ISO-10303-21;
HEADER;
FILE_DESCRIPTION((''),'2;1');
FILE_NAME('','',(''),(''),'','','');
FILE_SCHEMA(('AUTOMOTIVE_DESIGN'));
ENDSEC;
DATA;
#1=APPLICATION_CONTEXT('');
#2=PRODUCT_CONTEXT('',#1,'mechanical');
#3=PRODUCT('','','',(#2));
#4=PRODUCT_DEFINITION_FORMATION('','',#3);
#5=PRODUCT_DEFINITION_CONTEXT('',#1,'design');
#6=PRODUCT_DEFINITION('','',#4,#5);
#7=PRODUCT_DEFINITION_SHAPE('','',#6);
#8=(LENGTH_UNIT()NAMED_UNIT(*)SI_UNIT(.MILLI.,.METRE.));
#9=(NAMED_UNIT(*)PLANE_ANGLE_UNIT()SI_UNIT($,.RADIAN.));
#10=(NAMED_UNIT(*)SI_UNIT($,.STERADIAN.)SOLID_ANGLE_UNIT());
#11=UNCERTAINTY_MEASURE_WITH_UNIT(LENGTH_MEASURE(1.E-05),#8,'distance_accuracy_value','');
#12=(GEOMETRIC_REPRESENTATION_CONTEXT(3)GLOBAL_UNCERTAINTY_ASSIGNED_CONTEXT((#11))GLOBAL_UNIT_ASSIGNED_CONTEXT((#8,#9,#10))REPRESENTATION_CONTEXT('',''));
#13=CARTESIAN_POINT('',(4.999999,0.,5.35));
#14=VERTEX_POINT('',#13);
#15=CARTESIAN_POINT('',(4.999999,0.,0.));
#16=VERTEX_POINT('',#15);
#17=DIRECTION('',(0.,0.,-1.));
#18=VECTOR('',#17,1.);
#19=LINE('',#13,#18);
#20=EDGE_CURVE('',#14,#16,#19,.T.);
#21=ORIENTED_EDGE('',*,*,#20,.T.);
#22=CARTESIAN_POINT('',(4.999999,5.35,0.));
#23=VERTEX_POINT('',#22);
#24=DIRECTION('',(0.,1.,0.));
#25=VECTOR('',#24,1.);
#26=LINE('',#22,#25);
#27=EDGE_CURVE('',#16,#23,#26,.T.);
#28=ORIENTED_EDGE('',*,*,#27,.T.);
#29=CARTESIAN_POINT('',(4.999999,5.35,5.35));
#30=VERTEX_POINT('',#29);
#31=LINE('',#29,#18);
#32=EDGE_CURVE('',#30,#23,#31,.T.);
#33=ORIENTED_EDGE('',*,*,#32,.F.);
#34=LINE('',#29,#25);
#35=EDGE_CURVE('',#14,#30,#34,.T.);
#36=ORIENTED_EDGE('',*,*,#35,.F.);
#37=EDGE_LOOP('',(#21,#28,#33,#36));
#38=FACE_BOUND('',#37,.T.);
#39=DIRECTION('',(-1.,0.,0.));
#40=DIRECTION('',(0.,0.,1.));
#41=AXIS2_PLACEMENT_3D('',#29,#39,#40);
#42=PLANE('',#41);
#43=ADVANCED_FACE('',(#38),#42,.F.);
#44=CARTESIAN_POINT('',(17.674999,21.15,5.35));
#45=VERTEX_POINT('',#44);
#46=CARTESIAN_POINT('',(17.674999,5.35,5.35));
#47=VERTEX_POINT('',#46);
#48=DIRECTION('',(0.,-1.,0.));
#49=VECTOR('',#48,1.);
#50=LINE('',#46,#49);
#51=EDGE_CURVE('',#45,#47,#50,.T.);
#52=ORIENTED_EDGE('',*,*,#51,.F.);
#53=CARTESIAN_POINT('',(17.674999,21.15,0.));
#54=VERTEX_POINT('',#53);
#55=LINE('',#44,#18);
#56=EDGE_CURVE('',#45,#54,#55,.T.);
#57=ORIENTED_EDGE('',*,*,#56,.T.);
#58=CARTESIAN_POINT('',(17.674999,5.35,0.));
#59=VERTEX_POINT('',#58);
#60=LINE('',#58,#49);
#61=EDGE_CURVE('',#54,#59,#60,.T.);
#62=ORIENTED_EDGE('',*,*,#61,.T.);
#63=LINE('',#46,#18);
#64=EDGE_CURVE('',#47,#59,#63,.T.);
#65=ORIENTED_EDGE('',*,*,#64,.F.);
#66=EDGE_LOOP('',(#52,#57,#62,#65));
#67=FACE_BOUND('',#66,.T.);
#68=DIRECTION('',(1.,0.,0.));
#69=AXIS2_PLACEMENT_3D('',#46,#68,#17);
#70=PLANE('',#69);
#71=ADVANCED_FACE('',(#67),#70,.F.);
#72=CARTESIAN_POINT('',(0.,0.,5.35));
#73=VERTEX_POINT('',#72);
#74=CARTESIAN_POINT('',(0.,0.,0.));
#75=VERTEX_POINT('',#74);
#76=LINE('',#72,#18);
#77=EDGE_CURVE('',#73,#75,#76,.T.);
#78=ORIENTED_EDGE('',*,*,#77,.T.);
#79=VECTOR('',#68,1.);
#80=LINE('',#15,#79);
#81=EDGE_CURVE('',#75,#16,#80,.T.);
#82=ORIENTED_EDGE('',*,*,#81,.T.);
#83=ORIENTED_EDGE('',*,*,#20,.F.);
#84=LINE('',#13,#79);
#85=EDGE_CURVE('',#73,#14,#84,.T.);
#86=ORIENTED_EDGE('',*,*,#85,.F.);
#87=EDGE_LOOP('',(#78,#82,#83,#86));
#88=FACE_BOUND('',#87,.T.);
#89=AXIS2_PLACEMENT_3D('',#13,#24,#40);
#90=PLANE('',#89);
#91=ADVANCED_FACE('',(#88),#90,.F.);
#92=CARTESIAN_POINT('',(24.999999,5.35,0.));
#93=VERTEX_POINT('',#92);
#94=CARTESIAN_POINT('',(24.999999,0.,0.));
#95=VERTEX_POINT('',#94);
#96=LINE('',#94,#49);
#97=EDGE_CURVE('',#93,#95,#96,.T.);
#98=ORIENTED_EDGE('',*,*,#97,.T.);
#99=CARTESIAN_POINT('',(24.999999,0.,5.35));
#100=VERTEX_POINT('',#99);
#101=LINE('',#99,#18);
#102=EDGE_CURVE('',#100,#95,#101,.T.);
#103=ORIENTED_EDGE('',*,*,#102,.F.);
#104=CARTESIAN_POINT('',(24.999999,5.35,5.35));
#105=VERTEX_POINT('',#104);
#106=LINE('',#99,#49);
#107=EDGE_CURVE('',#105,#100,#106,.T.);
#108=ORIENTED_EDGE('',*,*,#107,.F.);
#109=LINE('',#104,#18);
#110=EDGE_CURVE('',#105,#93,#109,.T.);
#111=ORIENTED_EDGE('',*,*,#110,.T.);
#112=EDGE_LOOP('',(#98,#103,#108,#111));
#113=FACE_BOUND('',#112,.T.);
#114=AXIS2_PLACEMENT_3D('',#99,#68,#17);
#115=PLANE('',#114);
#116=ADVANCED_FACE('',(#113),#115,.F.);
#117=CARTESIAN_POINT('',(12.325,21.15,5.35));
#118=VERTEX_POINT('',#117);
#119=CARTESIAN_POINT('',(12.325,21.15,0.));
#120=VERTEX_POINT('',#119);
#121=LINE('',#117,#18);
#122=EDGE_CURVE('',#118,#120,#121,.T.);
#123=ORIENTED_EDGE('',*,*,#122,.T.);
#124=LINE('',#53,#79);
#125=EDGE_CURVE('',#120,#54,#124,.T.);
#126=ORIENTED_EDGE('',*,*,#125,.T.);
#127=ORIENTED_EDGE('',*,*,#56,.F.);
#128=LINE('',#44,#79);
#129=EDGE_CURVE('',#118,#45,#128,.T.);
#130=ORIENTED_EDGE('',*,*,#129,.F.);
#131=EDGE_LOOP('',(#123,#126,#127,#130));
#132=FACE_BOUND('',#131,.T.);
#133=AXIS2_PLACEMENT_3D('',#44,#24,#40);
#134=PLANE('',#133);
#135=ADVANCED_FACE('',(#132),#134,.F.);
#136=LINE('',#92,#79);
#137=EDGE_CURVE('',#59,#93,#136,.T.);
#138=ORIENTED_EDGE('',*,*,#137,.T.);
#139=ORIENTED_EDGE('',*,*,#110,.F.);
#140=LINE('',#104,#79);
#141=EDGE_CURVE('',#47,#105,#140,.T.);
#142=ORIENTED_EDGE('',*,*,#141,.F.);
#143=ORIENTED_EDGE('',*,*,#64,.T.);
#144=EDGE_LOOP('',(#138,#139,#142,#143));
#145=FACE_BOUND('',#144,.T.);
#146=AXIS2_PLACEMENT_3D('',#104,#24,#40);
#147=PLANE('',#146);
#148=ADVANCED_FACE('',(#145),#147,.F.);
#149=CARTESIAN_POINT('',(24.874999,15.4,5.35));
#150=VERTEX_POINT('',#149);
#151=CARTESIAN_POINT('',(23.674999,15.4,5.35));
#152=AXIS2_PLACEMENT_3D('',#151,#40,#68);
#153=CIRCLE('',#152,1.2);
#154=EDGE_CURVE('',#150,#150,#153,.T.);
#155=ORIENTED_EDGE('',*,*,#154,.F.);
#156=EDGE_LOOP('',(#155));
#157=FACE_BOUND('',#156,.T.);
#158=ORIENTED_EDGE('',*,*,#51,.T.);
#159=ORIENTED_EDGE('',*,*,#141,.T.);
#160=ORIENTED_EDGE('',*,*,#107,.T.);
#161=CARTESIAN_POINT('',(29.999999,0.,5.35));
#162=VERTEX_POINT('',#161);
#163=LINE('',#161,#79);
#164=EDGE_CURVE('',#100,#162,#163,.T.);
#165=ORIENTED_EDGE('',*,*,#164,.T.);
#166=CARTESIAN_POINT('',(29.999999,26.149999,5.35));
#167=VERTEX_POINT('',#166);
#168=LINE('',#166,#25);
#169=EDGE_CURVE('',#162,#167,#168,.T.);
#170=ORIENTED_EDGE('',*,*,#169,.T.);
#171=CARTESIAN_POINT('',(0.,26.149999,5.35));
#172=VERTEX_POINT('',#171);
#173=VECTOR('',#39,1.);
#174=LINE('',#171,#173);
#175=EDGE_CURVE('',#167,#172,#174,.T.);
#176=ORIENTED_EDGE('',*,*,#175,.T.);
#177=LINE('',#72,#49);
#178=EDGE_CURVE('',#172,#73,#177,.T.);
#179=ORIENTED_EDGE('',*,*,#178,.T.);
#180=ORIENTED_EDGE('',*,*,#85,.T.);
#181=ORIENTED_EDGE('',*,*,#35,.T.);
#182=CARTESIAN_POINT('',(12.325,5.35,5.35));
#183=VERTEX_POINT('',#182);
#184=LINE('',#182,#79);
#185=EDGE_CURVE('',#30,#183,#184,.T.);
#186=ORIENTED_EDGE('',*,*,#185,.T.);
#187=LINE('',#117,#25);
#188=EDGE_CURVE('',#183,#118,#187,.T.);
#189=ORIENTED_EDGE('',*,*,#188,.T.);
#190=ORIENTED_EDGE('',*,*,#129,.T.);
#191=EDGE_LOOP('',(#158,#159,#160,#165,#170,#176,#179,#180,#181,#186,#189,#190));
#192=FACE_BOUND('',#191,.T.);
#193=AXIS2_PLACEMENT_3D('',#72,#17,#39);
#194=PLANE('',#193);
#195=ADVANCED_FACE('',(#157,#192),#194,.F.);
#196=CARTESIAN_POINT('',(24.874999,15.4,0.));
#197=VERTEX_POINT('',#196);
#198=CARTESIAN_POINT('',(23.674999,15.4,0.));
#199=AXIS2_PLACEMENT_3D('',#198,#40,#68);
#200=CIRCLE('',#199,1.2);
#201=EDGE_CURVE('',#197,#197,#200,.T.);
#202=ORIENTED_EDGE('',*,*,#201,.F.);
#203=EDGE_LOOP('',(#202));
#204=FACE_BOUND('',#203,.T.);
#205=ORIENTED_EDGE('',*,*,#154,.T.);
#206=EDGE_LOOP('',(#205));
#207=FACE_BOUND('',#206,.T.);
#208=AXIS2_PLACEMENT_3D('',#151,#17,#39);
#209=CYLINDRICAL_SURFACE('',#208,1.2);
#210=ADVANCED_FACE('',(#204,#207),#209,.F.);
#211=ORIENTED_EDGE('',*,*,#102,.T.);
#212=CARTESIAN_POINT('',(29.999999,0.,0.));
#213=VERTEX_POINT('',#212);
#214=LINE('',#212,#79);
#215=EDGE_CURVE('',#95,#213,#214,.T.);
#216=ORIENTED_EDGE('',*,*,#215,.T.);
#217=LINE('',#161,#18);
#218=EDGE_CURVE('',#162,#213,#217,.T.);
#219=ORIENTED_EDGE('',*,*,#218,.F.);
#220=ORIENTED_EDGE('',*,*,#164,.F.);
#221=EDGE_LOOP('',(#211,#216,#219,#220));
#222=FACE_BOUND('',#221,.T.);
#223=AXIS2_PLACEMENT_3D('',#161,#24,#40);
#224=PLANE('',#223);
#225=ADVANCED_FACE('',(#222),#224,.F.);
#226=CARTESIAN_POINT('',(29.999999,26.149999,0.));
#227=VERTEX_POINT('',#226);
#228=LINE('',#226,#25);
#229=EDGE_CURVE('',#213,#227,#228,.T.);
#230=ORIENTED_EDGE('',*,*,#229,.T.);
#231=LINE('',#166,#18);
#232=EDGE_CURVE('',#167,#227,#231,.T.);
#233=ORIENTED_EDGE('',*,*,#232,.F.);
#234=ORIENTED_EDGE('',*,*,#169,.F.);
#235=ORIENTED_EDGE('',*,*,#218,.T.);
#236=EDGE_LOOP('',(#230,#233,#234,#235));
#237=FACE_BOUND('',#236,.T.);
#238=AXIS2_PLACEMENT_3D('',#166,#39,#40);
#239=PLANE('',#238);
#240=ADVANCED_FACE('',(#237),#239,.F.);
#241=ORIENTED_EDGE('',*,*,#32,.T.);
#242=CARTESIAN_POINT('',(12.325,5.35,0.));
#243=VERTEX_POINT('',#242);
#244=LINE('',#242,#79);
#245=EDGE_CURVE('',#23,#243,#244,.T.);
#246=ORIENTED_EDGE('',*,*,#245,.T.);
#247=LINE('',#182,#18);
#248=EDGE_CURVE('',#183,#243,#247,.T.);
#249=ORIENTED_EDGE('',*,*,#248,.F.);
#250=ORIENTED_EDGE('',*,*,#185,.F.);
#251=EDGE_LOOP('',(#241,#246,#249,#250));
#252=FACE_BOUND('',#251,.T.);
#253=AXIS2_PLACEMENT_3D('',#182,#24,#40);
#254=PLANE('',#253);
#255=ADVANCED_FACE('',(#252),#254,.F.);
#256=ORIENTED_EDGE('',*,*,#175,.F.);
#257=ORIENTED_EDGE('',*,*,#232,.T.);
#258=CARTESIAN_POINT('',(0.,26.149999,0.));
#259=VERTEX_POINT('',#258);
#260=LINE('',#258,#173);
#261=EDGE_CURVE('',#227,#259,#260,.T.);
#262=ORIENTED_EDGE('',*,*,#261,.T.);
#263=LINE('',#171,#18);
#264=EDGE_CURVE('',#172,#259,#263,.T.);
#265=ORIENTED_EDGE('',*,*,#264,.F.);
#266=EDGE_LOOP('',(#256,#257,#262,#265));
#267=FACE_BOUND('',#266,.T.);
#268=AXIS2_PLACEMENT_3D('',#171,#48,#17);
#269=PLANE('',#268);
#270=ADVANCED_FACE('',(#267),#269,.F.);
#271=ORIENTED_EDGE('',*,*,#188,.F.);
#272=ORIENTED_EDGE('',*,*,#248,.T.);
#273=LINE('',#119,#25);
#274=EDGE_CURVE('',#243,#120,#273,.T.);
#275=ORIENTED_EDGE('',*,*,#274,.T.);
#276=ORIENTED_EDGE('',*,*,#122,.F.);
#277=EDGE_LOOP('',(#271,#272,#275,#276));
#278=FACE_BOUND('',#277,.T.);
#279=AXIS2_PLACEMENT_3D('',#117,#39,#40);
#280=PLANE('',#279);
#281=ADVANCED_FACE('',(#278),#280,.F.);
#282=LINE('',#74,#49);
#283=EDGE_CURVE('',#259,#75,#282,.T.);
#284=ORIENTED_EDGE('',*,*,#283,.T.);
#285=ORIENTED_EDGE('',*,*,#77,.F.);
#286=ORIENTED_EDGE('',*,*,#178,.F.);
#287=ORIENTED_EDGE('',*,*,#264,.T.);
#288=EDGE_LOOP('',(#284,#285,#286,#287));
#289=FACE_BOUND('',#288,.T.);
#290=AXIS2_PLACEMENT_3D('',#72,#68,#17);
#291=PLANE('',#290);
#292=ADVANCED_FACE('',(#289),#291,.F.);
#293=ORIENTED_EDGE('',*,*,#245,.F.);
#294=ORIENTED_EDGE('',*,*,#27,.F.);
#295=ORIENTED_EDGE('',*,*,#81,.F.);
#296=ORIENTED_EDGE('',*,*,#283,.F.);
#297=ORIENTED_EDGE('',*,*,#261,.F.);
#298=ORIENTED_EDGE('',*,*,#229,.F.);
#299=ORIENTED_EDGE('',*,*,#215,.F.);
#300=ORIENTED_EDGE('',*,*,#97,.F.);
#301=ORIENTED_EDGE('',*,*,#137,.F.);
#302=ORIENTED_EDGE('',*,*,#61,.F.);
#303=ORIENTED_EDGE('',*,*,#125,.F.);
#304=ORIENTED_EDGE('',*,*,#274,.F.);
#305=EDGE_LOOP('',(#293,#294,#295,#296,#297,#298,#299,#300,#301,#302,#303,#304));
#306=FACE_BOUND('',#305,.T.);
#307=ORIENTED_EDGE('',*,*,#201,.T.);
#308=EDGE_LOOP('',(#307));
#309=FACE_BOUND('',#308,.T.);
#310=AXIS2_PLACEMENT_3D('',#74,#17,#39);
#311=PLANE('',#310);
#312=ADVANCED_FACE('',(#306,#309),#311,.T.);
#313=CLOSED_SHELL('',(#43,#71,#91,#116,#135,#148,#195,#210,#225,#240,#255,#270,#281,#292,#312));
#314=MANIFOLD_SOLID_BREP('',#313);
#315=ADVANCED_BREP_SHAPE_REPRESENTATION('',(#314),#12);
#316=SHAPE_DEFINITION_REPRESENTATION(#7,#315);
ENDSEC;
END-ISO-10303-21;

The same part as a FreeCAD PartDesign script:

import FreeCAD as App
import Part
import Sketcher

V = App.Vector
Q = App.Units.Quantity


def add_polygon(sketch, points):
    """Adds a closed chain of lines whose ends are joined by coincident constraints."""
    first, n = sketch.GeometryCount, len(points)
    for a, b in zip(points, points[1:] + points[:1]):
        sketch.addGeometry(Part.LineSegment(App.Vector(*a, 0), App.Vector(*b, 0)), False)
    for i in range(n):
        sketch.addConstraint(Sketcher.Constraint("Coincident", first + i, 2, first + (i + 1) % n, 1))

doc = App.newDocument("Part")
params = doc.addObject("Spreadsheet::Sheet", "Params")
for row, (alias, value) in enumerate([
    ("sketch1_diameter", "2.4 mm"),
    ("sketch1_width", "29.999999 mm"),
    ("sketch1_width2", "4.999999 mm"),
    ("sketch1_height", "15.8 mm"),
    ("sketch1_width3", "5.349999 mm"),
    ("pad1_length", "5.35 mm"),
], start=1):
    params.set(f"A{row}", alias)
    params.set(f"B{row}", "=" + value)
    params.setAlias(f"B{row}", alias)

body = doc.addObject("PartDesign::Body", "Body")

# Sketch on XY plane
sketch1 = doc.addObject("Sketcher::SketchObject", "Sketch")
body.addObject(sketch1)
sketch1.AttachmentSupport = (doc.XY_Plane, [""])
sketch1.MapMode = "FlatFace"
add_polygon(sketch1, [(29.999999, 0), (29.999999, 26.149999), (0, 26.149999), (0, 0), (4.999999, 0), (4.999999, 5.35), (12.325, 5.35), (12.325, 21.15), (17.674999, 21.15), (17.674999, 5.35), (24.999999, 5.35), (24.999999, 0)])  # lines 0-11
sketch1.addGeometry(Part.Circle(V(23.674999, 15.4, 0), V(0, 0, 1), 1.2), False)  # 12
sketch1.addConstraint([
    Sketcher.Constraint("Vertical", 0),
    Sketcher.Constraint("Horizontal", 1),
    Sketcher.Constraint("Vertical", 2),
    Sketcher.Constraint("Horizontal", 3),
    Sketcher.Constraint("Vertical", 4),
    Sketcher.Constraint("Horizontal", 5),
    Sketcher.Constraint("Vertical", 6),
    Sketcher.Constraint("Horizontal", 7),
    Sketcher.Constraint("Vertical", 8),
    Sketcher.Constraint("Horizontal", 9),
    Sketcher.Constraint("Vertical", 10),
    Sketcher.Constraint("Horizontal", 11),
    Sketcher.Constraint("Coincident", 2, 2, -1, 1),
    Sketcher.Constraint("PointOnObject", 10, 2, -1),
    Sketcher.Constraint("Horizontal", 5, 2, 8, 2),
    Sketcher.Constraint("Equal", 5, 9),
    Sketcher.Constraint("Equal", 3, 11),
    Sketcher.Constraint("Equal", 7, 4),
    Sketcher.Constraint("Diameter", 12, Q("2.4 mm")),
    Sketcher.Constraint("DistanceX", 1, 2, 1, 1, Q("29.999999 mm")),
    Sketcher.Constraint("DistanceX", 3, 1, 3, 2, Q("4.999999 mm")),
    Sketcher.Constraint("DistanceY", 6, 1, 6, 2, Q("15.8 mm")),
    Sketcher.Constraint("DistanceY", 6, 2, 1, 2, Q("4.999999 mm")),
    Sketcher.Constraint("DistanceX", 7, 2, 12, 3, Q("6 mm")),
    Sketcher.Constraint("DistanceX", 7, 1, 7, 2, Q("5.349999 mm")),
    Sketcher.Constraint("DistanceY", -1, 1, 12, 3, Q("15.4 mm")),
])
sketch1.setExpression("Constraints[30]", "Params.sketch1_diameter")
sketch1.setExpression("Constraints[31]", "Params.sketch1_width")
sketch1.setExpression("Constraints[32]", "Params.sketch1_width2")
sketch1.setExpression("Constraints[33]", "Params.sketch1_height")
sketch1.setExpression("Constraints[36]", "Params.sketch1_width3")
pad1 = doc.addObject("PartDesign::Pad", "Pad")
body.addObject(pad1)
pad1.Profile = sketch1
pad1.setExpression("Length", "Params.pad1_length")

doc.recompute()
